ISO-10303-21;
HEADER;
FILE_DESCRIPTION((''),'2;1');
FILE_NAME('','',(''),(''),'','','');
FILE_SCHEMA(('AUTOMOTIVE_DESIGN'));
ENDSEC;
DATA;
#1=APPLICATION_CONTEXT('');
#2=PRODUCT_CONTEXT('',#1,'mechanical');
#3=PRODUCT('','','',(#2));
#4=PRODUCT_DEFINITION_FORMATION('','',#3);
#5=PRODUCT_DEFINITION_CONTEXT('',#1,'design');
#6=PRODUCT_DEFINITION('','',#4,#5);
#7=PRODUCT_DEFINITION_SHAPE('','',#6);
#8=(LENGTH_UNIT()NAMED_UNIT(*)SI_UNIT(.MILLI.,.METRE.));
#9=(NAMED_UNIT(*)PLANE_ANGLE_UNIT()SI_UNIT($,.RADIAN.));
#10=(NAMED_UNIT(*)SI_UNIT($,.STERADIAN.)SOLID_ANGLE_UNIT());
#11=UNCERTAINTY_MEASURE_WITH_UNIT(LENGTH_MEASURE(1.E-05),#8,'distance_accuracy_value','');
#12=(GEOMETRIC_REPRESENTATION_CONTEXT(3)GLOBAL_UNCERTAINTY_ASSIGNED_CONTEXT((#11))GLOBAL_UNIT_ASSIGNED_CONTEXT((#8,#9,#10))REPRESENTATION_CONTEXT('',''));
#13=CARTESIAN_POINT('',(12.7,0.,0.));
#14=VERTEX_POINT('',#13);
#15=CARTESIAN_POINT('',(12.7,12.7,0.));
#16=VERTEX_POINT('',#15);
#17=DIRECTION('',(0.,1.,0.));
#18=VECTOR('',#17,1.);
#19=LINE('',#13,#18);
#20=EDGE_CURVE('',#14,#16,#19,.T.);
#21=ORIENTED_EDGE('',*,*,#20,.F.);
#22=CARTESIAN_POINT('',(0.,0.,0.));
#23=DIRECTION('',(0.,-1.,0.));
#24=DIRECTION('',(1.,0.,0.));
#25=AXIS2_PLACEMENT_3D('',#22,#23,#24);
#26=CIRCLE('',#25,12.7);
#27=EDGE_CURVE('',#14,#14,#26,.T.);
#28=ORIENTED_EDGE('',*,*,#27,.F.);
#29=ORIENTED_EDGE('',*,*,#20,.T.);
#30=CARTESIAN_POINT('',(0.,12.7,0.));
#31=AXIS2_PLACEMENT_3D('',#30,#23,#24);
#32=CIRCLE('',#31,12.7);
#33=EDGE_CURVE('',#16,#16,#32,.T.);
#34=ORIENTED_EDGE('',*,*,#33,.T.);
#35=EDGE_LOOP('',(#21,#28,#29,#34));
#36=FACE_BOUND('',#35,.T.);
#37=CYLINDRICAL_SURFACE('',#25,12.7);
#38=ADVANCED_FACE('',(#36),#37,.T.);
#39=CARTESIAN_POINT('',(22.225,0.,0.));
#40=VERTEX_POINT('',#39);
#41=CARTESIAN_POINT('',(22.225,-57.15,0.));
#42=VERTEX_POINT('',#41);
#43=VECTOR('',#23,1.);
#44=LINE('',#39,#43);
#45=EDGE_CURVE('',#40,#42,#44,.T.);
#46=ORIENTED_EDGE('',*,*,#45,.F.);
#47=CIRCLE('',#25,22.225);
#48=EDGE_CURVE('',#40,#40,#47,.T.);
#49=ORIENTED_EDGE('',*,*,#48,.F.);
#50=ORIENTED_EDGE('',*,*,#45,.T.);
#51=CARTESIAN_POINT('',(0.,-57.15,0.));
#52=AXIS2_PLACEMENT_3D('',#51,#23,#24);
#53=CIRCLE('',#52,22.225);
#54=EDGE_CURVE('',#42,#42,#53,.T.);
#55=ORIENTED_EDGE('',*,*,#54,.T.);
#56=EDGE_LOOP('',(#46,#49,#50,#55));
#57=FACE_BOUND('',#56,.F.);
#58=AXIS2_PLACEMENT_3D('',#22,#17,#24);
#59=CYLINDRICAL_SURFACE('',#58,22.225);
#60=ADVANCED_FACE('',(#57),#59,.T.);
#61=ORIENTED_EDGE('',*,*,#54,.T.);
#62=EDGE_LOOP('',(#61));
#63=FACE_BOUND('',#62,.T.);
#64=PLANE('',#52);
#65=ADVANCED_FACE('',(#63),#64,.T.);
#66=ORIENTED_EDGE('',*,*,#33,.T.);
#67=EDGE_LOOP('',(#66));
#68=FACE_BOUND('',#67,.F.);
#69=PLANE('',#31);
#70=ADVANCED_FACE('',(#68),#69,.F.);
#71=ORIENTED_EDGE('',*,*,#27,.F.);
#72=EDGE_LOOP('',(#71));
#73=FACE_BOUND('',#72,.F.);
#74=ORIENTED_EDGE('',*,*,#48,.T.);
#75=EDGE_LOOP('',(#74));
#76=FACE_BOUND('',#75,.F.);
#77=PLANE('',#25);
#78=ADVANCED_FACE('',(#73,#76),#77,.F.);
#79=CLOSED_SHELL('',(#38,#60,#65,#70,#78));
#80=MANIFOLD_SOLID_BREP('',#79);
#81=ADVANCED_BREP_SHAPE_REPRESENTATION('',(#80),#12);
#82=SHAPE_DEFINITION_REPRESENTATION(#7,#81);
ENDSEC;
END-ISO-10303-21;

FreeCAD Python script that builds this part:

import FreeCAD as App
import Part
import Sketcher

V = App.Vector
Q = App.Units.Quantity

doc = App.newDocument("Part")
body = doc.addObject("PartDesign::Body", "Body")

# Sketch on XZ plane
sketch1 = doc.addObject("Sketcher::SketchObject", "Sketch")
body.addObject(sketch1)
sketch1.AttachmentSupport = (doc.XZ_Plane, [""])
sketch1.MapMode = "FlatFace"
sketch1.addGeometry(Part.Circle(V(0, 0, 0), V(0, 0, 1), 22.225), False)
sketch1.addConstraint([
    Sketcher.Constraint("Coincident", 0, 3, -1, 1),
    Sketcher.Constraint("Diameter", 0, Q("1.75 in")),
])
pad1 = doc.addObject("PartDesign::Pad", "Pad")
body.addObject(pad1)
pad1.Profile = sketch1
pad1.Length = Q("2.25 in")

# Sketch on XZ plane
sketch2 = doc.addObject("Sketcher::SketchObject", "Sketch001")
body.addObject(sketch2)
sketch2.AttachmentSupport = (doc.XZ_Plane, [""])
sketch2.MapMode = "FlatFace"
sketch2.addGeometry(Part.Circle(V(0, 0, 0), V(0, 0, 1), 12.7), False)
sketch2.addConstraint([
    Sketcher.Constraint("Coincident", 0, 3, -1, 1),
    Sketcher.Constraint("Diameter", 0, Q("1 in")),
])
pad2 = doc.addObject("PartDesign::Pad", "Pad001")
body.addObject(pad2)
pad2.Profile = sketch2
pad2.Length = Q("0.5 in")
pad2.Reversed = True

doc.recompute()
